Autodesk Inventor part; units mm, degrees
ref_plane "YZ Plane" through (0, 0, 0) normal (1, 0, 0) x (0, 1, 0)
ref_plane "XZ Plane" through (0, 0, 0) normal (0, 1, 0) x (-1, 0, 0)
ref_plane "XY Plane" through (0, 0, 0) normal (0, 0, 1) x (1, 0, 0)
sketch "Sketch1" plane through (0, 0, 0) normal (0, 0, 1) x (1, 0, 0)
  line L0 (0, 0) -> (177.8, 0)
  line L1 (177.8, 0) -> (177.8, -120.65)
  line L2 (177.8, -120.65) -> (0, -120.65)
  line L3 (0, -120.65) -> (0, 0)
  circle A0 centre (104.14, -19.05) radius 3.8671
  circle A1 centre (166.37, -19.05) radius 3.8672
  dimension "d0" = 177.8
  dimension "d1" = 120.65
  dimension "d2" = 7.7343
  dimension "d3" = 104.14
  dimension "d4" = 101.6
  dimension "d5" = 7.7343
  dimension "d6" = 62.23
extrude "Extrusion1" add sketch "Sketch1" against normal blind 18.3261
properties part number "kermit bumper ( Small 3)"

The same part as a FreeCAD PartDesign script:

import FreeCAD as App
import Part
import Sketcher
Q = App.Units.Quantity


def add_polygon(sketch, points):
    """Adds a closed chain of lines whose ends are joined by coincident constraints."""
    first, n = sketch.GeometryCount, len(points)
    for a, b in zip(points, points[1:] + points[:1]):
        sketch.addGeometry(Part.LineSegment(App.Vector(*a, 0), App.Vector(*b, 0)), False)
    for i in range(n):
        sketch.addConstraint(Sketcher.Constraint("Coincident", first + i, 2, first + (i + 1) % n, 1))

doc = App.newDocument("Part")
body = doc.addObject("PartDesign::Body", "Body")

sketch1 = body.newObject("Sketcher::SketchObject", "Sketch")
sketch1.AttachmentSupport = (doc.getObject("XY_Plane"), [""])
sketch1.MapMode = "FlatFace"
add_polygon(sketch1, [(177.8, 0), (0, 0), (0, -120.7), (177.8, -120.7)])
sketch1.addGeometry(Part.Circle(App.Vector(104.1, -19.1, 0), App.Vector(0, 0, 1), 3.9), False)
sketch1.addGeometry(Part.Circle(App.Vector(166.4, -19.1, 0), App.Vector(0, 0, 1), 3.9), False)
sketch1.addConstraint([
    Sketcher.Constraint("Horizontal", 0),
    Sketcher.Constraint("Vertical", 1),
    Sketcher.Constraint("Horizontal", 2),
    Sketcher.Constraint("Vertical", 3),
    Sketcher.Constraint("Coincident", 0, 2, -1, 1),
    Sketcher.Constraint("Equal", 4, 5),
    Sketcher.Constraint("Horizontal", 4, 3, 5, 3),
    Sketcher.Constraint("DistanceX", 0, 2, 0, 1, Q("7 in")),
    Sketcher.Constraint("DistanceY", 1, 2, 4, 3, Q("4 in")),
    Sketcher.Constraint("Diameter", 4, Q("0.3045 in")),
    Sketcher.Constraint("DistanceY", 1, 2, 1, 1, Q("4.75 in")),
    Sketcher.Constraint("DistanceX", -1, 1, 4, 3, Q("4.1 in")),
    Sketcher.Constraint("DistanceX", 4, 3, 5, 3, Q("2.45 in")),
])
pad1 = body.newObject("PartDesign::Pad", "Pad")
pad1.Profile = sketch1
pad1.Length = Q("0.7215 in")
pad1.Reversed = True

doc.recompute()
